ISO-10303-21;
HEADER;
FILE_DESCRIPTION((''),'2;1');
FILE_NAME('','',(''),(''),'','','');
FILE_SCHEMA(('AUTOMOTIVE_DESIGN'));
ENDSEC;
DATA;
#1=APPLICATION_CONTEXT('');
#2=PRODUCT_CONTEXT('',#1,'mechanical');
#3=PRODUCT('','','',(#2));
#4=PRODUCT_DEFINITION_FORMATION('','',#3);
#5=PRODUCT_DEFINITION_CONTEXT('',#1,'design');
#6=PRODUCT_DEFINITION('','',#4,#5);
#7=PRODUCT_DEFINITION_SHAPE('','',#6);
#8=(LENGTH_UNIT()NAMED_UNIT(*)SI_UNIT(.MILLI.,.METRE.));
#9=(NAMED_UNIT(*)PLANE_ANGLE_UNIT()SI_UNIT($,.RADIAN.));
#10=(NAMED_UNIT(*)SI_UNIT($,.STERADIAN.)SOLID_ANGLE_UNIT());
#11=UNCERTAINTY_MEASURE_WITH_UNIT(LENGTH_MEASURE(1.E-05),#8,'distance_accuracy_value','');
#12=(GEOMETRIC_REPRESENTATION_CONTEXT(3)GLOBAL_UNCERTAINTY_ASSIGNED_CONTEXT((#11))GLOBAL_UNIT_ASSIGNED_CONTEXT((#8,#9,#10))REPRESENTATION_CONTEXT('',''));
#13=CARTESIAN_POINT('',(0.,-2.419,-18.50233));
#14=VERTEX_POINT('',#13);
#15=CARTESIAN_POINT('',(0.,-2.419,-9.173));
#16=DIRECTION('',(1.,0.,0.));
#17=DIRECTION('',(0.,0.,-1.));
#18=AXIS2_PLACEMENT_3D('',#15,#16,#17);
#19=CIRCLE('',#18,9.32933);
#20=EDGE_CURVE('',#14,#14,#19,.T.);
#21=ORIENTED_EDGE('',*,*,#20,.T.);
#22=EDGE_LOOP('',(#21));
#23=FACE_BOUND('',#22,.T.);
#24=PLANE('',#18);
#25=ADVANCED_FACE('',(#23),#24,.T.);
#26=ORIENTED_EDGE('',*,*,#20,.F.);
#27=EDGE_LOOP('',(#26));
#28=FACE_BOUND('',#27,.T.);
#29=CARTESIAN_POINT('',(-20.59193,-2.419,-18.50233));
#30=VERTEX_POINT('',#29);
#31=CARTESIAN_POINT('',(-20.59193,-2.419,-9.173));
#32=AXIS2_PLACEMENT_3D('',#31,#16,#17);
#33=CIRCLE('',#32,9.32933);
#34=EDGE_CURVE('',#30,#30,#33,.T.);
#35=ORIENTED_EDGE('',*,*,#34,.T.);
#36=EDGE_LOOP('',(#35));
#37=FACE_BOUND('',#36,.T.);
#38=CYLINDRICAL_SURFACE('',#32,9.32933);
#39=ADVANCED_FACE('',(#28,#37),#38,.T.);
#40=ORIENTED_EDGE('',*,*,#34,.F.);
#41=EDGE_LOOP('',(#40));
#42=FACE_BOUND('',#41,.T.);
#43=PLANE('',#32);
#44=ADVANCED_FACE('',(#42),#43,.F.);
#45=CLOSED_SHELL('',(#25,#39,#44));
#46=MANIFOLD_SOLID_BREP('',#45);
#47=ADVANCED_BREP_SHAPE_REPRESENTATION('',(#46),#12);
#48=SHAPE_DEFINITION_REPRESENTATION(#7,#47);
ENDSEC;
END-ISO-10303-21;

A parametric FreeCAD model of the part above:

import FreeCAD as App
import Part
import Sketcher
Q = App.Units.Quantity

doc = App.newDocument("Part")
body = doc.addObject("PartDesign::Body", "Body")

sketch1 = body.newObject("Sketcher::SketchObject", "Sketch")
sketch1.AttachmentSupport = (doc.getObject("YZ_Plane"), [""])
sketch1.MapMode = "FlatFace"
sketch1.addGeometry(Part.Circle(App.Vector(-2, -9, 0), App.Vector(0, 0, 1), 9), False)
sketch1.addConstraint([
    Sketcher.Constraint("Diameter", 0, Q("18.65866 mm")),
    Sketcher.Constraint("DistanceX", 0, 3, -1, 1, Q("2.419 mm")),
    Sketcher.Constraint("DistanceY", 0, 3, -1, 1, Q("9.173 mm")),
])
pad1 = body.newObject("PartDesign::Pad", "Pad")
pad1.Profile = sketch1
pad1.Length = 20.59193
pad1.Reversed = True

doc.recompute()
